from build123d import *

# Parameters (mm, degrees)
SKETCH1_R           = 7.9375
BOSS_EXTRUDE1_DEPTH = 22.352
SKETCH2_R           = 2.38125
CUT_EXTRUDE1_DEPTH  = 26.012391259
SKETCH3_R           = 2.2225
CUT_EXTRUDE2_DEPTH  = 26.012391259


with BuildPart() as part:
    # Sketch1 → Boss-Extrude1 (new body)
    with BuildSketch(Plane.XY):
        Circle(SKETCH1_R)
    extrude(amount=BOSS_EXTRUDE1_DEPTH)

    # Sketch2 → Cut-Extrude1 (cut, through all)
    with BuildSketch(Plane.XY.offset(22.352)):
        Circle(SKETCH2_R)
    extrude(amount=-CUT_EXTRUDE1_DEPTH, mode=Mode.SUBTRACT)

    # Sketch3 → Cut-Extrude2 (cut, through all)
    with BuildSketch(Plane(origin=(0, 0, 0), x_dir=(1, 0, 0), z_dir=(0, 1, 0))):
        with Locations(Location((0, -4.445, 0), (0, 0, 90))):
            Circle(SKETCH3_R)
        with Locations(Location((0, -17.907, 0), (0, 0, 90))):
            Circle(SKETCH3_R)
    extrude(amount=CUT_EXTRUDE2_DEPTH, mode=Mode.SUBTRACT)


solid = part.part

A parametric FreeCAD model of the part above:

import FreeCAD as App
import Part
import Sketcher

V = App.Vector
Q = App.Units.Quantity

doc = App.newDocument("Part")
params = doc.addObject("Spreadsheet::Sheet", "Params")
for row, (alias, value) in enumerate([
    ("sketch1_diameter", "0.625 in"),
    ("pad1_length", "0.88 in"),
    ("sketch2_diameter", "0.1875 in"),
    ("sketch3_diameter", "0.175 in"),
], start=1):
    params.set(f"A{row}", alias)
    params.set(f"B{row}", "=" + value)
    params.setAlias(f"B{row}", alias)

body = doc.addObject("PartDesign::Body", "Body")

# Sketch on XY plane
sketch1 = body.newObject("Sketcher::SketchObject", "Sketch")
sketch1.AttachmentSupport = (doc.getObject("XY_Plane"), [""])
sketch1.MapMode = "FlatFace"
sketch1.addGeometry(Part.Circle(V(0, 0, 0), V(0, 0, 1), 8), False)
sketch1.addConstraint(Sketcher.Constraint("Coincident", 0, 3, -1, 1))
sketch1.addConstraint(Sketcher.Constraint("Diameter", 0, Q("0.625 in")))
sketch1.setExpression("Constraints[1]", "Params.sketch1_diameter")
pad1 = body.newObject("PartDesign::Pad", "Pad")
pad1.Profile = sketch1
pad1.setExpression("Length", "Params.pad1_length")

# Sketch on XY plane
sketch2 = body.newObject("Sketcher::SketchObject", "Sketch001")
sketch2.AttachmentSupport = (doc.getObject("XY_Plane"), [""])
sketch2.MapMode = "FlatFace"
sketch2.AttachmentOffset = App.Placement(V(0, 0, 0.88 * 25.4), App.Rotation())
sketch2.addGeometry(Part.Circle(V(0, 0, 0), V(0, 0, 1), 2.4), False)
sketch2.addConstraint(Sketcher.Constraint("Coincident", 0, 3, -1, 1))
sketch2.addConstraint(Sketcher.Constraint("Diameter", 0, Q("0.1875 in")))
sketch2.setExpression("Constraints[1]", "Params.sketch2_diameter")
pocket1 = body.newObject("PartDesign::Pocket", "Pocket")
pocket1.Profile = sketch2
pocket1.Type = "ThroughAll"

# Sketch on XZ plane
sketch3 = body.newObject("Sketcher::SketchObject", "Sketch002")
sketch3.AttachmentSupport = (doc.getObject("XZ_Plane"), [""])
sketch3.MapMode = "FlatFace"
sketch3.addGeometry(Part.Circle(V(0, 4.4, 0), V(0, 0, 1), 2.2), False)
sketch3.addGeometry(Part.Circle(V(0, 17.9, 0), V(0, 0, 1), 2.2), False)
sketch3.addConstraint(Sketcher.Constraint("Equal", 0, 1))
sketch3.addConstraint(Sketcher.Constraint("PointOnObject", 0, 3, -2))
sketch3.addConstraint(Sketcher.Constraint("PointOnObject", 1, 3, -2))
sketch3.addConstraint(Sketcher.Constraint("Diameter", 0, Q("0.175 in")))
sketch3.addConstraint(Sketcher.Constraint("DistanceY", 0, 3, 1, 3, Q("0.53 in")))
sketch3.addConstraint(Sketcher.Constraint("DistanceY", -1, 1, 0, 3, Q("0.175 in")))
sketch3.setExpression("Constraints[3]", "Params.sketch3_diameter")
pocket2 = body.newObject("PartDesign::Pocket", "Pocket001")
pocket2.Profile = sketch3
pocket2.Type = "ThroughAll"

doc.recompute()
